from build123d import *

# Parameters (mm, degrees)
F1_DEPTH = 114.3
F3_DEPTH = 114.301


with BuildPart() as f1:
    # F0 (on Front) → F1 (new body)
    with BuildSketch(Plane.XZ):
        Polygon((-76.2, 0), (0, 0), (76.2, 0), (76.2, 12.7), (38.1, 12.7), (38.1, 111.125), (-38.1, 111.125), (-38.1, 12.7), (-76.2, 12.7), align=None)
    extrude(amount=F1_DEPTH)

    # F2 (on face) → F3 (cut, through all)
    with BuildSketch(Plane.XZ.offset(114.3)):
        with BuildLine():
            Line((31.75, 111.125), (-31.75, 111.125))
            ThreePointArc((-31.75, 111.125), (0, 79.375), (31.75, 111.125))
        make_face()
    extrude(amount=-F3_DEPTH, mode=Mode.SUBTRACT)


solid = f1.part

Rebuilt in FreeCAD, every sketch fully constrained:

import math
import FreeCAD as App
import Part
import Sketcher

V = App.Vector
Q = App.Units.Quantity

doc = App.newDocument("Part")
params = doc.addObject("Spreadsheet::Sheet", "Params")
for row, (alias, value) in enumerate([
    ("sketch1_width", "6 in"),
    ("sketch1_width2", "3 in"),
    ("sketch1_height", "0.5 in"),
    ("sketch1_height2", "3.875 in"),
    ("pad1_length", "4.5 in"),
    ("sketch2_radius", "1.25 in"),
], start=1):
    params.set(f"A{row}", alias)
    params.set(f"B{row}", "=" + value)
    params.setAlias(f"B{row}", alias)

body = doc.addObject("PartDesign::Body", "Body")

# Sketch on XZ plane
sketch1 = body.newObject("Sketcher::SketchObject", "Sketch")
sketch1.AttachmentSupport = (doc.getObject("XZ_Plane"), [""])
sketch1.MapMode = "FlatFace"
sketch1.addGeometry(Part.LineSegment(V(-76, 0, 0), V(76, 0, 0)), False)
sketch1.addGeometry(Part.LineSegment(V(76, 0, 0), V(76, 13, 0)), False)
sketch1.addGeometry(Part.LineSegment(V(76, 13, 0), V(38, 13, 0)), False)
sketch1.addGeometry(Part.LineSegment(V(38, 13, 0), V(38, 111, 0)), False)
sketch1.addGeometry(Part.LineSegment(V(38, 111, 0), V(-38, 111, 0)), False)
sketch1.addGeometry(Part.LineSegment(V(-38, 111, 0), V(-38, 13, 0)), False)
sketch1.addGeometry(Part.LineSegment(V(-38, 13, 0), V(-76, 13, 0)), False)
sketch1.addGeometry(Part.LineSegment(V(-76, 13, 0), V(-76, 0, 0)), False)
sketch1.addConstraint(Sketcher.Constraint("Coincident", 0, 2, 1, 1))
sketch1.addConstraint(Sketcher.Constraint("Coincident", 1, 2, 2, 1))
sketch1.addConstraint(Sketcher.Constraint("Coincident", 2, 2, 3, 1))
sketch1.addConstraint(Sketcher.Constraint("Coincident", 3, 2, 4, 1))
sketch1.addConstraint(Sketcher.Constraint("Coincident", 4, 2, 5, 1))
sketch1.addConstraint(Sketcher.Constraint("Coincident", 5, 2, 6, 1))
sketch1.addConstraint(Sketcher.Constraint("Coincident", 6, 2, 7, 1))
sketch1.addConstraint(Sketcher.Constraint("Coincident", 7, 2, 0, 1))
sketch1.addConstraint(Sketcher.Constraint("Horizontal", 0))
sketch1.addConstraint(Sketcher.Constraint("Vertical", 1))
sketch1.addConstraint(Sketcher.Constraint("Horizontal", 2))
sketch1.addConstraint(Sketcher.Constraint("Vertical", 3))
sketch1.addConstraint(Sketcher.Constraint("Horizontal", 4))
sketch1.addConstraint(Sketcher.Constraint("Vertical", 5))
sketch1.addConstraint(Sketcher.Constraint("Horizontal", 6))
sketch1.addConstraint(Sketcher.Constraint("Vertical", 7))
sketch1.addConstraint(Sketcher.Constraint("Symmetric", 0, 2, 7, 2, -1, 1))
sketch1.addConstraint(Sketcher.Constraint("Symmetric", 2, 2, 5, 2, -2))
sketch1.addConstraint(Sketcher.Constraint("DistanceX", 0, 1, 0, 2, Q("6 in")))
sketch1.addConstraint(Sketcher.Constraint("DistanceX", 4, 2, 4, 1, Q("3 in")))
sketch1.addConstraint(Sketcher.Constraint("DistanceY", 1, 1, 1, 2, Q("0.5 in")))
sketch1.addConstraint(Sketcher.Constraint("DistanceY", 3, 1, 3, 2, Q("3.875 in")))
sketch1.setExpression("Constraints[18]", "Params.sketch1_width")
sketch1.setExpression("Constraints[19]", "Params.sketch1_width2")
sketch1.setExpression("Constraints[20]", "Params.sketch1_height")
sketch1.setExpression("Constraints[21]", "Params.sketch1_height2")
pad1 = body.newObject("PartDesign::Pad", "Pad")
pad1.Profile = sketch1
pad1.setExpression("Length", "Params.pad1_length")

# Sketch on XZ plane
sketch2 = body.newObject("Sketcher::SketchObject", "Sketch001")
sketch2.AttachmentSupport = (doc.getObject("XZ_Plane"), [""])
sketch2.MapMode = "FlatFace"
sketch2.AttachmentOffset = App.Placement(V(0, 0, 4.5 * 25.4), App.Rotation())
sketch2.addGeometry(Part.LineSegment(V(32, 111, 0), V(-32, 111, 0)), False)
sketch2.addGeometry(Part.ArcOfCircle(Part.Circle(V(0, 111, 0), V(0, 0, 1), 32), math.radians(180), math.radians(360)), False)
sketch2.addConstraint(Sketcher.Constraint("Coincident", 0, 1, 1, 2))
sketch2.addConstraint(Sketcher.Constraint("Coincident", 1, 1, 0, 2))
sketch2.addConstraint(Sketcher.Constraint("Horizontal", 0))
sketch2.addConstraint(Sketcher.Constraint("PointOnObject", 1, 3, -2))
sketch2.addConstraint(Sketcher.Constraint("Horizontal", 1, 3, 0, 1))
sketch2.addConstraint(Sketcher.Constraint("Radius", 1, Q("1.25 in")))
sketch2.addConstraint(Sketcher.Constraint("DistanceY", -1, 1, 1, 3, Q("4.375 in")))
sketch2.setExpression("Constraints[5]", "Params.sketch2_radius")
pocket1 = body.newObject("PartDesign::Pocket", "Pocket")
pocket1.Profile = sketch2
pocket1.Type = "ThroughAll"

doc.recompute()
